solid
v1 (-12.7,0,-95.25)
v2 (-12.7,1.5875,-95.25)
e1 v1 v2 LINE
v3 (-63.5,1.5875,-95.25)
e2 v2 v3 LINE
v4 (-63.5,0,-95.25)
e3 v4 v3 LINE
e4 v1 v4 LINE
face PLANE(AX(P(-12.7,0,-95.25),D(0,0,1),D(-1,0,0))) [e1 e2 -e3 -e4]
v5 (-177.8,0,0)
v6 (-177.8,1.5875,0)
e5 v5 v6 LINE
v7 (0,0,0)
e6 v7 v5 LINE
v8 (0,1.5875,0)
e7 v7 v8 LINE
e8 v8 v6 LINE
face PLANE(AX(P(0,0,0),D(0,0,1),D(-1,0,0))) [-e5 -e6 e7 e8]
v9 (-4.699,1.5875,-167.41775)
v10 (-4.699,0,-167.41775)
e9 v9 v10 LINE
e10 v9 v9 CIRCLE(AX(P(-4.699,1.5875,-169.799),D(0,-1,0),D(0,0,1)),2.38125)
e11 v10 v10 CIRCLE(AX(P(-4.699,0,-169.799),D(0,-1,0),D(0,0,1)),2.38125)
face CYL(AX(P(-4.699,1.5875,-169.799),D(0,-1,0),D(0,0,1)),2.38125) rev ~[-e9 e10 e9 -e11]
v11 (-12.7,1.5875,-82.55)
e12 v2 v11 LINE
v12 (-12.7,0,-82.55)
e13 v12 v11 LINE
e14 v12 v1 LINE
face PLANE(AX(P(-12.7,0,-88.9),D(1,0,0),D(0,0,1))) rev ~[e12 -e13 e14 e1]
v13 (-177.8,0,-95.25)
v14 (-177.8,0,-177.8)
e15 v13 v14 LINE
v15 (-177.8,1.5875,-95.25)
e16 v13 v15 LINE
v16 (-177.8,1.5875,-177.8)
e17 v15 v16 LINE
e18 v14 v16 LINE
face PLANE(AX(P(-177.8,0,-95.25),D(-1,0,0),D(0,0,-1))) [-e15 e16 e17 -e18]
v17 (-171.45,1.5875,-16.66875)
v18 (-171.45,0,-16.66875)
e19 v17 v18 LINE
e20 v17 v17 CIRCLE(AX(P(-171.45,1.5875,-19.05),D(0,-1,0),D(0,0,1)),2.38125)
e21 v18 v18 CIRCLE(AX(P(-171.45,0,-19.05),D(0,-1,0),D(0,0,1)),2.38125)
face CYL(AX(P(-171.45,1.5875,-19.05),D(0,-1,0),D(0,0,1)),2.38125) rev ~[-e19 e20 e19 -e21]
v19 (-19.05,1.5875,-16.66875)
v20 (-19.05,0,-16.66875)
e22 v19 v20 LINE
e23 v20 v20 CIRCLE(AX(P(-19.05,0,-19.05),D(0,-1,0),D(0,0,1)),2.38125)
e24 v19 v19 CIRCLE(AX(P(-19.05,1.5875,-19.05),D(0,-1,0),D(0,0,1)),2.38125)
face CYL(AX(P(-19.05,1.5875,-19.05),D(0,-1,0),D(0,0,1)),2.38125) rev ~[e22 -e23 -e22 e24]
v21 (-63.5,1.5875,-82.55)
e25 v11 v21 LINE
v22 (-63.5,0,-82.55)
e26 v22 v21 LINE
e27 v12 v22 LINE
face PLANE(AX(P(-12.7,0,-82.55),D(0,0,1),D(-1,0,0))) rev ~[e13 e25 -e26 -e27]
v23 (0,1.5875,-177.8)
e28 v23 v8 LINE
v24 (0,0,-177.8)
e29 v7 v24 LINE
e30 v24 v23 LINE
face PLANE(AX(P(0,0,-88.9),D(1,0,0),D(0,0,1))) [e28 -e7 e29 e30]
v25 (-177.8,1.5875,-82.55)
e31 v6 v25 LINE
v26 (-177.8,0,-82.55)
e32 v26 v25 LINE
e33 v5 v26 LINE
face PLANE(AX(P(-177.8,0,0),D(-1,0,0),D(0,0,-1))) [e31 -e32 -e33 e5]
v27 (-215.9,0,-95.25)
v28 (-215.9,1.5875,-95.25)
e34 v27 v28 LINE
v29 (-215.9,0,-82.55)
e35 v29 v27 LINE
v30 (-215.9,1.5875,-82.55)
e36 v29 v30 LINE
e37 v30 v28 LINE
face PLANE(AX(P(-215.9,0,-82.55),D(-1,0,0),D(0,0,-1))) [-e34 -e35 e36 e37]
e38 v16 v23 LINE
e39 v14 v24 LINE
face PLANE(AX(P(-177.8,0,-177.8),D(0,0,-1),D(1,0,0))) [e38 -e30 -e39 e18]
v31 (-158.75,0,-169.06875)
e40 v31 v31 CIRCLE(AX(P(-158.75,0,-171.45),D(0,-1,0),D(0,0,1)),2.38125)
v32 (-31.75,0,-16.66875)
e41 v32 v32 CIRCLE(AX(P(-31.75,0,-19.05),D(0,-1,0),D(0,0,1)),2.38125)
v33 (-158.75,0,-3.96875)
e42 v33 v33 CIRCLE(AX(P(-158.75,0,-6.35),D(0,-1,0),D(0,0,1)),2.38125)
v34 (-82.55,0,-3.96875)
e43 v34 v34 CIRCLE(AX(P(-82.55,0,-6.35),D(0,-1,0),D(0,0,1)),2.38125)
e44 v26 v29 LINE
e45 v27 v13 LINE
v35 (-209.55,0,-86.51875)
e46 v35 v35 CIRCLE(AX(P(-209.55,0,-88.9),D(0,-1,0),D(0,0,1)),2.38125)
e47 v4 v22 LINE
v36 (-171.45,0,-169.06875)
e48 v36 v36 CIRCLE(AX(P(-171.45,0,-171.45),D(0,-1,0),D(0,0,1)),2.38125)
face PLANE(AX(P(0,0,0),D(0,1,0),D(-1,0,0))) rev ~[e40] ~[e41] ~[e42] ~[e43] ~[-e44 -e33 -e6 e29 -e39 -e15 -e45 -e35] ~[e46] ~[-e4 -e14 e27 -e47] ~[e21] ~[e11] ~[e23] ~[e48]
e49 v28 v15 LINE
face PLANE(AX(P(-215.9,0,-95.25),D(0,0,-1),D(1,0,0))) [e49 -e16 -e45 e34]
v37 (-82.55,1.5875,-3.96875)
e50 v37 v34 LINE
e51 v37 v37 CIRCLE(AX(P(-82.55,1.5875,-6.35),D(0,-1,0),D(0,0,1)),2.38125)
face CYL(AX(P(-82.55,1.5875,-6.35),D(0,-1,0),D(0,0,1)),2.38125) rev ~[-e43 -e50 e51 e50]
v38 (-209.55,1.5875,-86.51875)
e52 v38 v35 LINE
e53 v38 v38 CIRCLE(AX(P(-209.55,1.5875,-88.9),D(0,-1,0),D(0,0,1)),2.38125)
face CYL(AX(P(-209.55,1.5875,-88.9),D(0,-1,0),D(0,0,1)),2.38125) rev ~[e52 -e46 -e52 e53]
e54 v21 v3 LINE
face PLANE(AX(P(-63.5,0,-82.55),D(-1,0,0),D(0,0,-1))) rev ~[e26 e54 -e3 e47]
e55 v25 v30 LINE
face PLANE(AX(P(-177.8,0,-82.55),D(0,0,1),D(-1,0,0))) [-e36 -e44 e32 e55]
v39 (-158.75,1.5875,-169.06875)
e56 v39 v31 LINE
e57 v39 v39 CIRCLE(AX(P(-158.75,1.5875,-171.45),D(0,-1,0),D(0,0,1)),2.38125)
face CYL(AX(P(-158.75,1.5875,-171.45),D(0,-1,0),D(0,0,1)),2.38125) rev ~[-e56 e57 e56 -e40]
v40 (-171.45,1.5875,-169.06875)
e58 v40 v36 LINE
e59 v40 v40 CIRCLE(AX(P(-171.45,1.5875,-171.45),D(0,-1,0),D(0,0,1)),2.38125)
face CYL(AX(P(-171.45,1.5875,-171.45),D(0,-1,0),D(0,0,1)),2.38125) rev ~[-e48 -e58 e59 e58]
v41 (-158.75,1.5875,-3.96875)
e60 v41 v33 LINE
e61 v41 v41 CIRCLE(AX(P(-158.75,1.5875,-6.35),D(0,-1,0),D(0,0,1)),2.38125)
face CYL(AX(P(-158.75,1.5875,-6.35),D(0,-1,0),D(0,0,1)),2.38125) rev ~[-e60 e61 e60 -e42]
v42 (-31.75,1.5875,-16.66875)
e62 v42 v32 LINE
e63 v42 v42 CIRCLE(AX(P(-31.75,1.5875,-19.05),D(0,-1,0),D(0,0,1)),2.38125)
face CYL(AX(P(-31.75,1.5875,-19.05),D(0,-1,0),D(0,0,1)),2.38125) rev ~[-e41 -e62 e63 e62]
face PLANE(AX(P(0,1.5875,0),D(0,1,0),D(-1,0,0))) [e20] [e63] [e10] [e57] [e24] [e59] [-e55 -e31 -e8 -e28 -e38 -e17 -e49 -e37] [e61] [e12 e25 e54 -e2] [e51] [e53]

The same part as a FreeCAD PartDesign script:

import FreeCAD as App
import Part
import Sketcher
from FreeCAD import Vector
Q = App.Units.Quantity


def add_polygon(sketch, points):
    """Adds a closed chain of lines whose ends are joined by coincident constraints."""
    first, n = sketch.GeometryCount, len(points)
    for a, b in zip(points, points[1:] + points[:1]):
        sketch.addGeometry(Part.LineSegment(App.Vector(*a, 0), App.Vector(*b, 0)), False)
    for i in range(n):
        sketch.addConstraint(Sketcher.Constraint("Coincident", first + i, 2, first + (i + 1) % n, 1))

doc = App.newDocument("Part")
body = doc.addObject("PartDesign::Body", "Body")

# Sketch on XZ plane
sketch1 = body.newObject("Sketcher::SketchObject", "Sketch")
sketch1.AttachmentSupport = (doc.getObject("XZ_Plane"), [""])
sketch1.MapMode = "FlatFace"
add_polygon(sketch1, [(-178, 0), (0, 0), (0, -178), (-178, -178), (-178, -95), (-216, -95), (-216, -83), (-178, -83)])  # lines 0-7
add_polygon(sketch1, [(-64, -83), (-64, -95), (-13, -95), (-13, -83)])  # lines 8-11
sketch1.addConstraint([
    Sketcher.Constraint("Horizontal", 0),
    Sketcher.Constraint("Vertical", 1),
    Sketcher.Constraint("Horizontal", 2),
    Sketcher.Constraint("Vertical", 3),
    Sketcher.Constraint("Horizontal", 4),
    Sketcher.Constraint("Vertical", 5),
    Sketcher.Constraint("Horizontal", 6),
    Sketcher.Constraint("Vertical", 7),
    Sketcher.Constraint("Vertical", 8),
    Sketcher.Constraint("Horizontal", 9),
    Sketcher.Constraint("Vertical", 10),
    Sketcher.Constraint("Horizontal", 11),
    Sketcher.Constraint("Coincident", 0, 2, -1, 1),
    Sketcher.Constraint("Horizontal", 4, 2, 8, 2),
    Sketcher.Constraint("Horizontal", 6, 2, 10, 2),
    Sketcher.Constraint("Vertical", 3, 2, 6, 2),
    Sketcher.Constraint("Equal", 2, 1),
    Sketcher.Constraint("Equal", 3, 7),
    Sketcher.Constraint("DistanceX", 0, 1, 0, 2, Q("7 in")),
    Sketcher.Constraint("DistanceY", 5, 1, 5, 2, Q("0.5 in")),
    Sketcher.Constraint("DistanceX", 9, 2, -1, 1, Q("0.5 in")),
    Sketcher.Constraint("DistanceX", 9, 1, 9, 2, Q("2 in")),
    Sketcher.Constraint("DistanceX", 4, 2, 4, 1, Q("1.5 in")),
])
pad1 = body.newObject("PartDesign::Pad", "Pad")
pad1.Profile = sketch1
pad1.Length = Q("0.0625 in")
pad1.Reversed = True

# Sketch on XZ plane
sketch2 = body.newObject("Sketcher::SketchObject", "Sketch001")
sketch2.AttachmentSupport = (doc.getObject("XZ_Plane"), [""])
sketch2.MapMode = "FlatFace"
sketch2.AttachmentOffset = App.Placement(Vector(0, 0, -0.0625 * 25.4), App.Rotation())
sketch2.addGeometry([
    Part.Circle(Vector(-171.4, -171.4, 0), Vector(0, 0, 1), 2.4),  # 0
    Part.Circle(Vector(-158.8, -171.4, 0), Vector(0, 0, 1), 2.4),  # 1
    Part.Circle(Vector(-19.1, -19.1, 0), Vector(0, 0, 1), 2.4),  # 2
    Part.Circle(Vector(-31.8, -19.1, 0), Vector(0, 0, 1), 2.4),  # 3
    Part.Circle(Vector(-171.4, -19.1, 0), Vector(0, 0, 1), 2.4),  # 4
    Part.Circle(Vector(-158.8, -6.3, 0), Vector(0, 0, 1), 2.4),  # 5
    Part.Circle(Vector(-4.7, -169.8, 0), Vector(0, 0, 1), 2.4),  # 6
    Part.Circle(Vector(-209.6, -88.9, 0), Vector(0, 0, 1), 2.4),  # 7
], False)
sketch2.addConstraint([
    Sketcher.Constraint("Equal", 0, 1),
    Sketcher.Constraint("Equal", 1, 2),
    Sketcher.Constraint("Equal", 2, 3),
    Sketcher.Constraint("Equal", 3, 4),
    Sketcher.Constraint("Equal", 4, 5),
    Sketcher.Constraint("Equal", 5, 6),
    Sketcher.Constraint("Equal", 6, 7),
    Sketcher.Constraint("Horizontal", 0, 3, 1, 3),
    Sketcher.Constraint("Horizontal", 2, 3, 3, 3),
    Sketcher.Constraint("Horizontal", 3, 3, 4, 3),
    Sketcher.Constraint("Vertical", 0, 3, 4, 3),
    Sketcher.Constraint("Vertical", 1, 3, 5, 3),
    Sketcher.Constraint("Diameter", 0, Q("0.1875 in")),
    Sketcher.Constraint("DistanceY", 1, 3, 2, 3, Q("6 in")),
    Sketcher.Constraint("DistanceX", 0, 3, 2, 3, Q("6 in")),
    Sketcher.Constraint("DistanceX", 1, 3, 3, 3, Q("5 in")),
    Sketcher.Constraint("DistanceX", 7, 3, 1, 3, Q("2 in")),
    Sketcher.Constraint("DistanceY", 7, 3, -1, 1, Q("3.5 in")),
    Sketcher.Constraint("DistanceX", 0, 3, 1, 3, Q("0.5 in")),
    Sketcher.Constraint("DistanceY", 4, 3, 5, 3, Q("0.5 in")),
    Sketcher.Constraint("DistanceX", 0, 3, -1, 1, Q("6.75 in")),
    Sketcher.Constraint("DistanceY", 0, 3, -1, 1, Q("6.75 in")),
    Sketcher.Constraint("DistanceX", 6, 3, -1, 1, Q("0.185 in")),
    Sketcher.Constraint("DistanceY", 6, 3, -1, 1, Q("6.685 in")),
])
doc.recompute()
hole = body.newObject("PartDesign::Hole", "Hole")
hole.Profile = sketch2
hole.ThreadType = "None"
hole.Diameter = Q("0.1875 in")
hole.DepthType = "ThroughAll"
hole.Reversed = True

# Sketch on XZ plane
sketch3 = body.newObject("Sketcher::SketchObject", "Sketch002")
sketch3.AttachmentSupport = (doc.getObject("XZ_Plane"), [""])
sketch3.MapMode = "FlatFace"
sketch3.AttachmentOffset = App.Placement(Vector(0, 0, -0.0625 * 25.4), App.Rotation())
sketch3.addGeometry(Part.Circle(Vector(-82.5, -6.3, 0), Vector(0, 0, 1), 2.4), False)
sketch3.addConstraint([
    Sketcher.Constraint("Diameter", 0, Q("0.1875 in")),
    Sketcher.Constraint("DistanceX", 0, 3, -1, 1, Q("3.25 in")),
    Sketcher.Constraint("DistanceY", 0, 3, -1, 1, Q("0.25 in")),
])
doc.recompute()
hole2 = body.newObject("PartDesign::Hole", "Hole001")
hole2.Profile = sketch3
hole2.ThreadType = "None"
hole2.Diameter = Q("0.1875 in")
hole2.DepthType = "ThroughAll"
hole2.Reversed = True

doc.recompute()
